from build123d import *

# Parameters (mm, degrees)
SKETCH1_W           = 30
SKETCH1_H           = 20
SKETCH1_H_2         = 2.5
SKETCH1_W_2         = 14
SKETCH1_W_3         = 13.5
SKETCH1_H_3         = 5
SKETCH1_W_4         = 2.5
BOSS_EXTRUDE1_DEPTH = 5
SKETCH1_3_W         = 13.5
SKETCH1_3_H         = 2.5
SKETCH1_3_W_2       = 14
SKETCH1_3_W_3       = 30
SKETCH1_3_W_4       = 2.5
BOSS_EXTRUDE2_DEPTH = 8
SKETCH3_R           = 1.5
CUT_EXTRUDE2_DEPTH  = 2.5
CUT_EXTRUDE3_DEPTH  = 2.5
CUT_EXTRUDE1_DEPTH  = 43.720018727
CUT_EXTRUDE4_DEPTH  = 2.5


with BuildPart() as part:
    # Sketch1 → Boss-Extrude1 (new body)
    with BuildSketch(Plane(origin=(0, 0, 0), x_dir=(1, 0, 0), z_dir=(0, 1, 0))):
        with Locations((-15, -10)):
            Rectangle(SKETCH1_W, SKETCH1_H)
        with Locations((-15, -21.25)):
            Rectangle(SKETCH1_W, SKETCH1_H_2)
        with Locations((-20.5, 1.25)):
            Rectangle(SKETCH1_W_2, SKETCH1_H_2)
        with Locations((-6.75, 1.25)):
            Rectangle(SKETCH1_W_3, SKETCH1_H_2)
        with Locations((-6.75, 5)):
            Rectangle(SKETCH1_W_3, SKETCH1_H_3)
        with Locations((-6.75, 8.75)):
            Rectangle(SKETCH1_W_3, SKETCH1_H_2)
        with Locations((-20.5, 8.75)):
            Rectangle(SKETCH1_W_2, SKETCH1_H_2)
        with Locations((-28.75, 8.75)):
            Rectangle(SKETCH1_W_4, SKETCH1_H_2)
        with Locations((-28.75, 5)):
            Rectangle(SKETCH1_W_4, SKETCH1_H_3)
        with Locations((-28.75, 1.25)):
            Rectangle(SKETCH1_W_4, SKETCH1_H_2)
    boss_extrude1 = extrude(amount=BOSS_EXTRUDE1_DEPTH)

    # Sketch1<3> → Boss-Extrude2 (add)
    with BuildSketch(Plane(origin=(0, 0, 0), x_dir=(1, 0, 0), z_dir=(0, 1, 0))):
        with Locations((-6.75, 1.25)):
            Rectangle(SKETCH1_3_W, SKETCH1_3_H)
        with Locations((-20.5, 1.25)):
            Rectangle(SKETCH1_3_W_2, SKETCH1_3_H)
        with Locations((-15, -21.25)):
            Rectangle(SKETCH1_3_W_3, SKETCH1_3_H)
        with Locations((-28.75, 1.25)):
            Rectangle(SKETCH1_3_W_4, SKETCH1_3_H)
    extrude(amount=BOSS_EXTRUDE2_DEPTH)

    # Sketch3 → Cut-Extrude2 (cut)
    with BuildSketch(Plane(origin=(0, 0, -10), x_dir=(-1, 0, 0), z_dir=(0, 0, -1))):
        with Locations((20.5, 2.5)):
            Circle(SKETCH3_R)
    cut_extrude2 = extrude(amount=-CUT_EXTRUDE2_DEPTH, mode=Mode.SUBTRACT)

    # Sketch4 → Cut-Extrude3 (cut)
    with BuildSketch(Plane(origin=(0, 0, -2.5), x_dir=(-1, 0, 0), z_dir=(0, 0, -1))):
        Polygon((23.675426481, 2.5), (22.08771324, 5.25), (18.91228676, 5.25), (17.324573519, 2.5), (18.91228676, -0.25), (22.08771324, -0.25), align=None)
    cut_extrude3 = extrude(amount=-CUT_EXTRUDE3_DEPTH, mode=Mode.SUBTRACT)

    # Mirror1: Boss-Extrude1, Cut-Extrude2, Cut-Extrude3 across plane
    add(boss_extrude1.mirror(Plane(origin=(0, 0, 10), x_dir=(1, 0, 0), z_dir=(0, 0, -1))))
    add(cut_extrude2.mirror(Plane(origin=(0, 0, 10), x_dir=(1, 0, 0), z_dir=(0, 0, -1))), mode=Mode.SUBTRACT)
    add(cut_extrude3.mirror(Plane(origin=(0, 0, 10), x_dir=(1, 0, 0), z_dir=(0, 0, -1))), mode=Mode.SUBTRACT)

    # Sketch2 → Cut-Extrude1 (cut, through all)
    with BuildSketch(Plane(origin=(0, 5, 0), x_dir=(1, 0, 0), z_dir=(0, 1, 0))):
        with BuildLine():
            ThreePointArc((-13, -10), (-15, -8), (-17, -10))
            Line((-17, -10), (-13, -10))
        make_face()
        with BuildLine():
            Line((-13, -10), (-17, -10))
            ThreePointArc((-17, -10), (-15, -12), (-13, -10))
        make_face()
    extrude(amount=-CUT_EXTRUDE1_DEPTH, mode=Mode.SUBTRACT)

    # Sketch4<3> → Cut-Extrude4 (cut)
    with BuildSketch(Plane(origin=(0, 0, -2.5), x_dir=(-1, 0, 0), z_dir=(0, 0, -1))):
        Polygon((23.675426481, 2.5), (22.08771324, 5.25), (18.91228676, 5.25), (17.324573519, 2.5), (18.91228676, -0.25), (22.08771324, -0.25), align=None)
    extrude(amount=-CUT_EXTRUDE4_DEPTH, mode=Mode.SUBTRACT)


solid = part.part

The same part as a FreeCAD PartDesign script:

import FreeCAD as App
import Part
import Sketcher
from FreeCAD import Vector
Q = App.Units.Quantity


def add_polygon(sketch, points):
    """Adds a closed chain of lines whose ends are joined by coincident constraints."""
    first, n = sketch.GeometryCount, len(points)
    for a, b in zip(points, points[1:] + points[:1]):
        sketch.addGeometry(Part.LineSegment(App.Vector(*a, 0), App.Vector(*b, 0)), False)
    for i in range(n):
        sketch.addConstraint(Sketcher.Constraint("Coincident", first + i, 2, first + (i + 1) % n, 1))

doc = App.newDocument("Part")
params = doc.addObject("Spreadsheet::Sheet", "Params")
for row, (alias, value) in enumerate([
    ("sketch1_width", "30 mm"),
    ("sketch1_width2", "14 mm"),
    ("sketch1_height", "5 mm"),
    ("sketch1_height2", "32.5 mm"),
    ("pad1_length", "5 mm"),
    ("sketch2_width", "30 mm"),
    ("sketch2_height", "2.5 mm"),
    ("pad2_length", "8 mm"),
    ("sketch3_diameter", "3 mm"),
    ("pocket1_length", "2.5 mm"),
    ("pocket2_length", "2.5 mm"),
    ("sketch5_diameter", "4 mm"),
    ("pocket4_length", "2.5 mm"),
], start=1):
    params.set(f"A{row}", alias)
    params.set(f"B{row}", "=" + value)
    params.setAlias(f"B{row}", alias)

body = doc.addObject("PartDesign::Body", "Body")

sketch1 = doc.addObject("Sketcher::SketchObject", "Sketch")
body.addObject(sketch1)
sketch1.AttachmentSupport = (doc.XZ_Plane, [""])
sketch1.MapMode = "FlatFace"
add_polygon(sketch1, [(-30, -10), (-30, 22), (0, 22), (0, -10)])
add_polygon(sketch1, [(-14, -2), (-28, -2), (-28, -8), (-14, -8)])
sketch1.addConstraint([
    Sketcher.Constraint("Vertical", 0),
    Sketcher.Constraint("Horizontal", 1),
    Sketcher.Constraint("Vertical", 2),
    Sketcher.Constraint("Horizontal", 3),
    Sketcher.Constraint("Horizontal", 4),
    Sketcher.Constraint("Vertical", 5),
    Sketcher.Constraint("Horizontal", 6),
    Sketcher.Constraint("Vertical", 7),
    Sketcher.Constraint("PointOnObject", 1, 2, -2),
    Sketcher.Constraint("DistanceX", 1, 1, 1, 2, Q("30 mm")),
    Sketcher.Constraint("DistanceX", 4, 2, 4, 1, Q("14 mm")),
    Sketcher.Constraint("DistanceY", 5, 2, 5, 1, Q("5 mm")),
    Sketcher.Constraint("DistanceY", 0, 1, 0, 2, Q("32.5 mm")),
    Sketcher.Constraint("DistanceY", 2, 2, -1, 1, Q("10 mm")),
    Sketcher.Constraint("DistanceY", 4, 2, 0, 2, Q("25 mm")),
    Sketcher.Constraint("DistanceX", 4, 2, -1, 1, Q("27.5 mm")),
])
sketch1.setExpression("Constraints[17]", "Params.sketch1_width")
sketch1.setExpression("Constraints[18]", "Params.sketch1_width2")
sketch1.setExpression("Constraints[19]", "Params.sketch1_height")
sketch1.setExpression("Constraints[20]", "Params.sketch1_height2")
pad1 = doc.addObject("PartDesign::Pad", "Pad")
body.addObject(pad1)
pad1.Profile = sketch1
pad1.setExpression("Length", "Params.pad1_length")
pad1.Reversed = True

sketch2 = doc.addObject("Sketcher::SketchObject", "Sketch001")
body.addObject(sketch2)
sketch2.AttachmentSupport = (doc.XZ_Plane, [""])
sketch2.MapMode = "FlatFace"
add_polygon(sketch2, [(0, 0), (0, -2.5), (-30, -2.5), (-30, 0)])
add_polygon(sketch2, [(-30, 20), (-30, 22.5), (0, 22.5), (0, 20)])
sketch2.addConstraint([
    Sketcher.Constraint("Vertical", 0),
    Sketcher.Constraint("Horizontal", 1),
    Sketcher.Constraint("Vertical", 2),
    Sketcher.Constraint("Horizontal", 3),
    Sketcher.Constraint("Vertical", 4),
    Sketcher.Constraint("Horizontal", 5),
    Sketcher.Constraint("Vertical", 6),
    Sketcher.Constraint("Horizontal", 7),
    Sketcher.Constraint("Coincident", 3, 2, -1, 1),
    Sketcher.Constraint("PointOnObject", 5, 2, -2),
    Sketcher.Constraint("Vertical", 2, 2, 4, 2),
    Sketcher.Constraint("Equal", 2, 4),
    Sketcher.Constraint("DistanceX", 1, 2, 1, 1, Q("30 mm")),
    Sketcher.Constraint("DistanceY", 0, 2, 0, 1, Q("2.5 mm")),
    Sketcher.Constraint("DistanceY", -1, 1, 6, 2, Q("20 mm")),
])
sketch2.setExpression("Constraints[20]", "Params.sketch2_width")
sketch2.setExpression("Constraints[21]", "Params.sketch2_height")
pad2 = doc.addObject("PartDesign::Pad", "Pad001")
body.addObject(pad2)
pad2.Profile = sketch2
pad2.setExpression("Length", "Params.pad2_length")
pad2.Reversed = True

sketch3 = doc.addObject("Sketcher::SketchObject", "Sketch002")
body.addObject(sketch3)
sketch3.AttachmentSupport = (doc.XY_Plane, [""])
sketch3.MapMode = "FlatFace"
sketch3.AttachmentOffset = App.Placement(Vector(0, 0, -10), App.Rotation())
sketch3.addGeometry(Part.Circle(Vector(-20.5, 2.5, 0), Vector(0, 0, 1), 1.5), False)
sketch3.addConstraint([
    Sketcher.Constraint("Diameter", 0, Q("3 mm")),
    Sketcher.Constraint("DistanceX", 0, 3, -1, 1, Q("20.5 mm")),
    Sketcher.Constraint("DistanceY", -1, 1, 0, 3, Q("2.5 mm")),
])
sketch3.setExpression("Constraints[0]", "Params.sketch3_diameter")
pocket1 = doc.addObject("PartDesign::Pocket", "Pocket")
body.addObject(pocket1)
pocket1.Profile = sketch3
pocket1.setExpression("Length", "Params.pocket1_length")
pocket1.Reversed = True

sketch4 = doc.addObject("Sketcher::SketchObject", "Sketch003")
body.addObject(sketch4)
sketch4.AttachmentSupport = (doc.XY_Plane, [""])
sketch4.MapMode = "FlatFace"
sketch4.AttachmentOffset = App.Placement(Vector(0, 0, -2.5), App.Rotation())
add_polygon(sketch4, [(-23.7, 2.5), (-22.1, 5.2), (-18.9, 5.2), (-17.3, 2.5), (-18.9, -0.2), (-22.1, -0.2)])
sketch4.addConstraint([
    Sketcher.Constraint("Horizontal", 1),
    Sketcher.Constraint("Horizontal", 4),
    Sketcher.Constraint("Parallel", 0, 3),
    Sketcher.Constraint("Parallel", 2, 5),
    Sketcher.Constraint("Horizontal", 2, 2, 5, 2),
    Sketcher.Constraint("Vertical", 1, 2, 3, 2),
    Sketcher.Constraint("Vertical", 0, 2, 4, 2),
    Sketcher.Constraint("Angle", 0, Q("60 deg")),
    Sketcher.Constraint("DistanceY", -1, 1, 2, 2, Q("2.5 mm")),
    Sketcher.Constraint("DistanceY", 3, 2, 1, 2, Q("5.5 mm")),
    Sketcher.Constraint("DistanceX", 1, 1, 1, 2, Q("3.175426 mm")),
    Sketcher.Constraint("DistanceX", 0, 2, -1, 1, Q("22.087713 mm")),
])
pocket2 = doc.addObject("PartDesign::Pocket", "Pocket001")
body.addObject(pocket2)
pocket2.Profile = sketch4
pocket2.setExpression("Length", "Params.pocket2_length")
pocket2.Reversed = True
doc.recompute()

datumplane = doc.addObject("PartDesign::Plane", "DatumPlane")
body.addObject(datumplane)
datumplane.AttachmentSupport = (doc.XY_Plane, [""])
datumplane.MapMode = "FlatFace"
datumplane.AttachmentOffset = App.Placement(Vector(0, 0, 10), App.Rotation())
mirrored = doc.addObject("PartDesign::Mirrored", "Mirrored")
body.addObject(mirrored)
mirrored.Originals = [pad1, pocket1, pocket2]
mirrored.MirrorPlane = (datumplane, [""])
body.Tip = mirrored

sketch5 = doc.addObject("Sketcher::SketchObject", "Sketch004")
body.addObject(sketch5)
sketch5.AttachmentSupport = (doc.XZ_Plane, [""])
sketch5.MapMode = "FlatFace"
sketch5.AttachmentOffset = App.Placement(Vector(0, 0, -5), App.Rotation())
sketch5.addGeometry(Part.Circle(Vector(-15, 10, 0), Vector(0, 0, 1), 2), False)
sketch5.addConstraint([
    Sketcher.Constraint("Diameter", 0, Q("4 mm")),
    Sketcher.Constraint("DistanceX", 0, 3, -1, 1, Q("15 mm")),
    Sketcher.Constraint("DistanceY", -1, 1, 0, 3, Q("10 mm")),
])
sketch5.setExpression("Constraints[0]", "Params.sketch5_diameter")
pocket3 = doc.addObject("PartDesign::Pocket", "Pocket002")
body.addObject(pocket3)
pocket3.Profile = sketch5
pocket3.Type = "ThroughAll"
pocket3.Reversed = True

sketch6 = doc.addObject("Sketcher::SketchObject", "Sketch005")
body.addObject(sketch6)
sketch6.AttachmentSupport = (doc.XY_Plane, [""])
sketch6.MapMode = "FlatFace"
sketch6.AttachmentOffset = App.Placement(Vector(0, 0, -2.5), App.Rotation())
add_polygon(sketch6, [(-23.7, 2.5), (-22.1, 5.2), (-18.9, 5.2), (-17.3, 2.5), (-18.9, -0.2), (-22.1, -0.2)])
sketch6.addConstraint([
    Sketcher.Constraint("Horizontal", 1),
    Sketcher.Constraint("Horizontal", 4),
    Sketcher.Constraint("Parallel", 0, 3),
    Sketcher.Constraint("Parallel", 2, 5),
    Sketcher.Constraint("Horizontal", 2, 2, 5, 2),
    Sketcher.Constraint("Vertical", 1, 2, 3, 2),
    Sketcher.Constraint("Vertical", 0, 2, 4, 2),
    Sketcher.Constraint("Angle", 0, Q("60 deg")),
    Sketcher.Constraint("DistanceY", -1, 1, 2, 2, Q("2.5 mm")),
    Sketcher.Constraint("DistanceY", 3, 2, 1, 2, Q("5.5 mm")),
    Sketcher.Constraint("DistanceX", 1, 1, 1, 2, Q("3.175426 mm")),
    Sketcher.Constraint("DistanceX", 0, 2, -1, 1, Q("22.087713 mm")),
])
pocket4 = doc.addObject("PartDesign::Pocket", "Pocket003")
body.addObject(pocket4)
pocket4.Profile = sketch6
pocket4.setExpression("Length", "Params.pocket4_length")
pocket4.Reversed = True

doc.recompute()
